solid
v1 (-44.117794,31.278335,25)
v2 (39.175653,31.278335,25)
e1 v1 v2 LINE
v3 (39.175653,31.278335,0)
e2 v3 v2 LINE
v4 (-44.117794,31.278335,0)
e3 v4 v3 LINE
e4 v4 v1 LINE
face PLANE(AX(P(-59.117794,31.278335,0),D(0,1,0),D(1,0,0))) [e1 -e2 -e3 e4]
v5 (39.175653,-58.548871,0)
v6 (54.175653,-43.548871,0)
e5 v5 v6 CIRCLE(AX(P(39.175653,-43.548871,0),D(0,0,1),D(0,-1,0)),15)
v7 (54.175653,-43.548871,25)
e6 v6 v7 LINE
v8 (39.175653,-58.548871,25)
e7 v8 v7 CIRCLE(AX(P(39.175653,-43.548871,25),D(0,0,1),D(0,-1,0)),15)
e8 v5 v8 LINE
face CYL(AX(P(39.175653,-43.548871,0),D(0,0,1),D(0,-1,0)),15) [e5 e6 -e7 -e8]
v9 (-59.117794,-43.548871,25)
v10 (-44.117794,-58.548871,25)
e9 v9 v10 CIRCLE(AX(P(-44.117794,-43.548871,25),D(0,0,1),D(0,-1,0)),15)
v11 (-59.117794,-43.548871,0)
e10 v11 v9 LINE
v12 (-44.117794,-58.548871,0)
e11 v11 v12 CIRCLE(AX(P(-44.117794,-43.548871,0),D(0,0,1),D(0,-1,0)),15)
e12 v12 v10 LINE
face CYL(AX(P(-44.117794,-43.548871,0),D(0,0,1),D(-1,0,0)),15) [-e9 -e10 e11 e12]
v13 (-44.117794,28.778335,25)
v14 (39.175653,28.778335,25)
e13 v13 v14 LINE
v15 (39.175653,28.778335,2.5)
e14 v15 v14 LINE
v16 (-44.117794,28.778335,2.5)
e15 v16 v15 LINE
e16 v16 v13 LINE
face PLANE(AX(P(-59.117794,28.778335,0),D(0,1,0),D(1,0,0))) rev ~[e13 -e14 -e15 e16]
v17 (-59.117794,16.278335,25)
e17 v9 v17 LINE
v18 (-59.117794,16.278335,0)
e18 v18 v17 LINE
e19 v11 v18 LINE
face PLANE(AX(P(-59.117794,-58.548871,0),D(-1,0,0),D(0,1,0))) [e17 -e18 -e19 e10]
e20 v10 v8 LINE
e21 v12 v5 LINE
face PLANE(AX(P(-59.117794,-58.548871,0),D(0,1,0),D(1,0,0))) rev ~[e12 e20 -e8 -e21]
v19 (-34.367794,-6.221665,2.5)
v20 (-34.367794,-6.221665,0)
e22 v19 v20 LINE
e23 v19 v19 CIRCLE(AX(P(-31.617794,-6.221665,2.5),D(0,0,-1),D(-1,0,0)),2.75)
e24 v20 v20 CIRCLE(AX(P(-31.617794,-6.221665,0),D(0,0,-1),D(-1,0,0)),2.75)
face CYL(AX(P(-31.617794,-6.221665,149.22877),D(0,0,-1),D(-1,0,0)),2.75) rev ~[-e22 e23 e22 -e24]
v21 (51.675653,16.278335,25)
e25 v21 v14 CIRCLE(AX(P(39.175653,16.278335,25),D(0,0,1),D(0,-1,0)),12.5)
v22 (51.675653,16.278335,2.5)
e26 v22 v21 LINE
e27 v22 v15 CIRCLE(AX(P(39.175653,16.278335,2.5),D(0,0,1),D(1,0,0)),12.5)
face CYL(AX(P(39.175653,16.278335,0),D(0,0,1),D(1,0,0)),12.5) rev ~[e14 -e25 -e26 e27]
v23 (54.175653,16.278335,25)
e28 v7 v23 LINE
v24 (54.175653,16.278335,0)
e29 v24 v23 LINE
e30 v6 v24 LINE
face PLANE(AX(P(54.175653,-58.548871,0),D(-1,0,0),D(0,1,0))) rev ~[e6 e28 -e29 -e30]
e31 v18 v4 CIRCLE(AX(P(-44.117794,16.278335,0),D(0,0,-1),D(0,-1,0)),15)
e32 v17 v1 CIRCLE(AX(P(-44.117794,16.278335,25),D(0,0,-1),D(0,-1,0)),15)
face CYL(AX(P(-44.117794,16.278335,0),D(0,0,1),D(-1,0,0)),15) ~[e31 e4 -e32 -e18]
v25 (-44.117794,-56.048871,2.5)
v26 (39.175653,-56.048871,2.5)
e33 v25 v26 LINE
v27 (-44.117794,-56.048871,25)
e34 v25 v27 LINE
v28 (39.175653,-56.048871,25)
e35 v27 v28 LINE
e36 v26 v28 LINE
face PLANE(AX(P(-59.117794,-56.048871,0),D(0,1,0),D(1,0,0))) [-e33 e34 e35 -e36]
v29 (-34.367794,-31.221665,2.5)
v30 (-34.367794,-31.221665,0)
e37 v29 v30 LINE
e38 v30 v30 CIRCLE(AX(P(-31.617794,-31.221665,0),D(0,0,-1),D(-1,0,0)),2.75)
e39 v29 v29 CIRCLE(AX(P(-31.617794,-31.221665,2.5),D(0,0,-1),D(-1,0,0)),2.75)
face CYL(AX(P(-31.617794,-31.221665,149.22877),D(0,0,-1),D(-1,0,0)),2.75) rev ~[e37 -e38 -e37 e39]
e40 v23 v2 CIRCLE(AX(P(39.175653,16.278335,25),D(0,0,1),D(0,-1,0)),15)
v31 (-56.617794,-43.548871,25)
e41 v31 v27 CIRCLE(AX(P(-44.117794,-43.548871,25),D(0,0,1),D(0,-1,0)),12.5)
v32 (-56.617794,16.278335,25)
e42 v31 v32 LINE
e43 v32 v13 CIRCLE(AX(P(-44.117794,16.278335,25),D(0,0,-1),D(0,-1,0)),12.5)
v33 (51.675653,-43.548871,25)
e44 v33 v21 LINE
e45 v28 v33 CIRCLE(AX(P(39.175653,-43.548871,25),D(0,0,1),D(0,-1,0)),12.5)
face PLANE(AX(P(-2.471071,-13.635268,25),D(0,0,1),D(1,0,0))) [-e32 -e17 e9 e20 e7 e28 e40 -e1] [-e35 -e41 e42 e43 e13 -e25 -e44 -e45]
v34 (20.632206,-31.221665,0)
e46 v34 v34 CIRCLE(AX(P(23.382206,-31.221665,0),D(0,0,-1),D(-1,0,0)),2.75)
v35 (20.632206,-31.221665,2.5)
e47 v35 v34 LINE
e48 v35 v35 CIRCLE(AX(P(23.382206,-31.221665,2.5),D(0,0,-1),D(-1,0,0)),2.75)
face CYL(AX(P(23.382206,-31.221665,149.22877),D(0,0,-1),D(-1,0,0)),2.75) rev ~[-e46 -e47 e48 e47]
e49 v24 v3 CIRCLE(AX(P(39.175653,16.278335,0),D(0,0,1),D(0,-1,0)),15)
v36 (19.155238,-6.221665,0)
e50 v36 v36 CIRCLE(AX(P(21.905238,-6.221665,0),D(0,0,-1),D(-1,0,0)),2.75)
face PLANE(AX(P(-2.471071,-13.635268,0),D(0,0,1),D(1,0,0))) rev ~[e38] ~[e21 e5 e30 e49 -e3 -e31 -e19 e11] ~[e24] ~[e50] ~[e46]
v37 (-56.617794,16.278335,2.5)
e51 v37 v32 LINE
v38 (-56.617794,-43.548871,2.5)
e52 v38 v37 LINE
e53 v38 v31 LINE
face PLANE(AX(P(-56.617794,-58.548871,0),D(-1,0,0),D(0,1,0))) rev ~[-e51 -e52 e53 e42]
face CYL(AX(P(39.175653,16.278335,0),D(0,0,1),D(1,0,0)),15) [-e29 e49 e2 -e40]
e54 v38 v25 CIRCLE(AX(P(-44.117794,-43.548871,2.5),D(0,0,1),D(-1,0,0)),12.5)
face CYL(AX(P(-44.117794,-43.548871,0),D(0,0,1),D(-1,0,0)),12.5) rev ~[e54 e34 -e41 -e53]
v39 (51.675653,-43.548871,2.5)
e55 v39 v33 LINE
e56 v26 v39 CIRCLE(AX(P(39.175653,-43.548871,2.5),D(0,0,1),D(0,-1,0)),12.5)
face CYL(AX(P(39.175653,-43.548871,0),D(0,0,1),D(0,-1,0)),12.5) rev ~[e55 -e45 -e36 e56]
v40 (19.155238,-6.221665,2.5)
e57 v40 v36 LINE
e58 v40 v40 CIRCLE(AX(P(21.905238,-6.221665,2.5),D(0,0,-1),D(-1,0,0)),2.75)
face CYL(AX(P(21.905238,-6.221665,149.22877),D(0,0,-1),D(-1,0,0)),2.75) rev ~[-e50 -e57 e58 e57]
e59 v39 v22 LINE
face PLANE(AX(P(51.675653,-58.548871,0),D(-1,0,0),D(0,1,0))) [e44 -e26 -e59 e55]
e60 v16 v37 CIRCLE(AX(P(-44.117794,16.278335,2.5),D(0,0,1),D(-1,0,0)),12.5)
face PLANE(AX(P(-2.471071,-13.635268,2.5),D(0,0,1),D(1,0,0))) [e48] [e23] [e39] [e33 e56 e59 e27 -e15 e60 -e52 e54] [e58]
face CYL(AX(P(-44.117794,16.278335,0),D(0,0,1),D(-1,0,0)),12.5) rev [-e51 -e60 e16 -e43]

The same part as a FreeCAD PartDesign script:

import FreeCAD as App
import Part
import Sketcher


def edges_at(feature, points):
    """Names of the edges that pass closest to the given points."""
    edges = feature.Shape.Edges
    near = lambda p: min(range(len(edges)), key=lambda i: edges[i].distToShape(Part.Vertex(*p))[0])
    return sorted({f"Edge{near(p) + 1}" for p in points})


def faces_at(feature, points):
    """Names of the faces that lie closest to the given points."""
    faces = feature.Shape.Faces
    near = lambda p: min(range(len(faces)), key=lambda i: faces[i].distToShape(Part.Vertex(*p))[0])
    return sorted({f"Face{near(p) + 1}" for p in points})


def add_polygon(sketch, points):
    """Adds a closed chain of lines whose ends are joined by coincident constraints."""
    first, n = sketch.GeometryCount, len(points)
    for a, b in zip(points, points[1:] + points[:1]):
        sketch.addGeometry(Part.LineSegment(App.Vector(*a, 0), App.Vector(*b, 0)), False)
    for i in range(n):
        sketch.addConstraint(Sketcher.Constraint("Coincident", first + i, 2, first + (i + 1) % n, 1))

doc = App.newDocument("Part")
body = doc.addObject("PartDesign::Body", "Body")

sketch1 = body.newObject("Sketcher::SketchObject", "Sketch")
sketch1.AttachmentSupport = (doc.getObject("XY_Plane"), [""])
sketch1.MapMode = "FlatFace"
add_polygon(sketch1, [(-59, 31), (-59, -59), (54, -59), (54, 31)])
sketch1.addConstraint(Sketcher.Constraint("Vertical", 0))
sketch1.addConstraint(Sketcher.Constraint("Horizontal", 1))
sketch1.addConstraint(Sketcher.Constraint("Vertical", 2))
sketch1.addConstraint(Sketcher.Constraint("Horizontal", 3))
sketch1.addConstraint(Sketcher.Constraint("DistanceX", 1, 1, 1, 2, 113.293447))
sketch1.addConstraint(Sketcher.Constraint("DistanceY", 0, 2, 0, 1, 89.827206))
sketch1.addConstraint(Sketcher.Constraint("DistanceY", 0, 2, -1, 1, 58.548871))
sketch1.addConstraint(Sketcher.Constraint("DistanceX", 0, 2, -1, 1, 59.117794))
pad1 = body.newObject("PartDesign::Pad", "Pad")
pad1.Profile = sketch1
pad1.Length = 25
doc.recompute()

fillet = body.newObject("PartDesign::Fillet", "Fillet")
fillet.Base = (pad1, edges_at(pad1, [
    (-59.118, -58.549, 12.5),
    (54.176, -58.549, 12.5),
    (54.176, 31.278, 12.5),
    (-59.118, 31.278, 12.5),
]))
fillet.Radius = 15
doc.recompute()

thickness = body.newObject("PartDesign::Thickness", "Thickness")
thickness.Base = (fillet, faces_at(fillet, [(-2.471, -13.635, 25)]))
thickness.Value = 2.5
thickness.Reversed = True
thickness.Join = "Arc"

sketch2 = body.newObject("Sketcher::SketchObject", "Sketch001")
sketch2.AttachmentSupport = (doc.getObject("XY_Plane"), [""])
sketch2.MapMode = "FlatFace"
sketch2.AttachmentOffset = App.Placement(App.Vector(0, 0, 2.5), App.Rotation())
sketch2.addGeometry(Part.Circle(App.Vector(-31.6, -6.2, 0), App.Vector(0, 0, 1), 2.8), False)
sketch2.addGeometry(Part.Circle(App.Vector(-31.6, -31.2, 0), App.Vector(0, 0, 1), 2.8), False)
sketch2.addGeometry(Part.Circle(App.Vector(21.9, -6.2, 0), App.Vector(0, 0, 1), 2.8), False)
sketch2.addGeometry(Part.Circle(App.Vector(23.4, -31.2, 0), App.Vector(0, 0, 1), 2.8), False)
sketch2.addConstraint(Sketcher.Constraint("Equal", 0, 1))
sketch2.addConstraint(Sketcher.Constraint("Equal", 1, 2))
sketch2.addConstraint(Sketcher.Constraint("Equal", 2, 3))
sketch2.addConstraint(Sketcher.Constraint("Horizontal", 0, 3, 2, 3))
sketch2.addConstraint(Sketcher.Constraint("Horizontal", 1, 3, 3, 3))
sketch2.addConstraint(Sketcher.Constraint("Vertical", 0, 3, 1, 3))
sketch2.addConstraint(Sketcher.Constraint("Diameter", 0, 5.5))
sketch2.addConstraint(Sketcher.Constraint("DistanceY", 1, 3, 0, 3, 25.0))
sketch2.addConstraint(Sketcher.Constraint("DistanceX", 1, 3, 3, 3, 55.0))
sketch2.addConstraint(Sketcher.Constraint("DistanceX", 0, 3, 2, 3, 53.523032))
sketch2.addConstraint(Sketcher.Constraint("DistanceX", 0, 3, -1, 1, 31.617794))
sketch2.addConstraint(Sketcher.Constraint("DistanceY", 0, 3, -1, 1, 6.221665))
doc.recompute()
hole = body.newObject("PartDesign::Hole", "Hole")
hole.Profile = sketch2
hole.ThreadType = "None"
hole.Diameter = 5.5
hole.DepthType = "ThroughAll"

doc.recompute()
